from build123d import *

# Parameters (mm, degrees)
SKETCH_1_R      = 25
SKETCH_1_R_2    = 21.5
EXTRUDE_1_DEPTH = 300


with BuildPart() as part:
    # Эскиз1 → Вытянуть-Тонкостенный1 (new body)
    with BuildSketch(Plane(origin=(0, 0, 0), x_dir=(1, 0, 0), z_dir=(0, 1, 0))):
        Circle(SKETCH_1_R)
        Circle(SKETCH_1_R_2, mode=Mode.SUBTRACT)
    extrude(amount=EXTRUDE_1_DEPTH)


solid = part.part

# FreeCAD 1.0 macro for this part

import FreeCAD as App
import Part
import Sketcher
from FreeCAD import Vector
Q = App.Units.Quantity

doc = App.newDocument("Part")
params = doc.addObject("Spreadsheet::Sheet", "Params")
for row, (alias, value) in enumerate([
    ("sketch1_diameter", "50 mm"),
    ("sketch1_diameter2", "43 mm"),
    ("pad1_length", "300 mm"),
], start=1):
    params.set(f"A{row}", alias)
    params.set(f"B{row}", "=" + value)
    params.setAlias(f"B{row}", alias)

body = doc.addObject("PartDesign::Body", "Body")

sketch1 = doc.addObject("Sketcher::SketchObject", "Sketch")
body.addObject(sketch1)
sketch1.AttachmentSupport = (doc.XZ_Plane, [""])
sketch1.MapMode = "FlatFace"
sketch1.addGeometry([
    Part.Circle(Vector(0, 0, 0), Vector(0, 0, 1), 25),
    Part.Circle(Vector(0, 0, 0), Vector(0, 0, 1), 22),
], False)
sketch1.addConstraint([
    Sketcher.Constraint("Coincident", 0, 3, -1, 1),
    Sketcher.Constraint("Coincident", 1, 3, -1, 1),
    Sketcher.Constraint("Diameter", 0, Q("50 mm")),
    Sketcher.Constraint("Diameter", 1, Q("43 mm")),
])
sketch1.setExpression("Constraints[2]", "Params.sketch1_diameter")
sketch1.setExpression("Constraints[3]", "Params.sketch1_diameter2")
pad1 = doc.addObject("PartDesign::Pad", "Pad")
body.addObject(pad1)
pad1.Profile = sketch1
pad1.setExpression("Length", "Params.pad1_length")
pad1.Reversed = True

doc.recompute()
